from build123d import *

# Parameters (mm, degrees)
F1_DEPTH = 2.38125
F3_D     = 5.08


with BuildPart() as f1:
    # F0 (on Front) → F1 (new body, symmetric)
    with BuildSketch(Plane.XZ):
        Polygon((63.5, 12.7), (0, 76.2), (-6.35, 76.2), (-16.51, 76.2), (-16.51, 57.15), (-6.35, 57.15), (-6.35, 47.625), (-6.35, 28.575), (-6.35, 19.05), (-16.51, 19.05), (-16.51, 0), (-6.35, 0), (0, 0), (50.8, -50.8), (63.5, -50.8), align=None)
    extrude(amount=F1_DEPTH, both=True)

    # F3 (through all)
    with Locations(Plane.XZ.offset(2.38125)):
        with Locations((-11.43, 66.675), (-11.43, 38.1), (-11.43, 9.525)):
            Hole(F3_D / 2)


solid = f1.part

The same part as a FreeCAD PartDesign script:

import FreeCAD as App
import Part
import Sketcher
Q = App.Units.Quantity

doc = App.newDocument("Part")
body = doc.addObject("PartDesign::Body", "Body")

# Sketch on XZ plane
sketch1 = body.newObject("Sketcher::SketchObject", "Sketch")
sketch1.AttachmentSupport = (doc.getObject("XZ_Plane"), [""])
sketch1.MapMode = "FlatFace"
sketch1.addGeometry(Part.LineSegment(App.Vector(63.5, 12.7, 0), App.Vector(0, 76.2, 0)), False)
sketch1.addGeometry(Part.LineSegment(App.Vector(0, 76.2, 0), App.Vector(-16.51, 76.2, 0)), False)
sketch1.addGeometry(Part.LineSegment(App.Vector(-16.51, 76.2, 0), App.Vector(-16.51, 57.15, 0)), False)
sketch1.addGeometry(Part.LineSegment(App.Vector(-16.51, 57.15, 0), App.Vector(-6.35, 57.15, 0)), False)
sketch1.addGeometry(Part.LineSegment(App.Vector(-6.35, 57.15, 0), App.Vector(-6.35, 19.05, 0)), False)
sketch1.addGeometry(Part.LineSegment(App.Vector(-6.35, 19.05, 0), App.Vector(-16.51, 19.05, 0)), False)
sketch1.addGeometry(Part.LineSegment(App.Vector(-16.51, 19.05, 0), App.Vector(-16.51, 0, 0)), False)
sketch1.addGeometry(Part.LineSegment(App.Vector(-16.51, 0, 0), App.Vector(0, 0, 0)), False)
sketch1.addGeometry(Part.LineSegment(App.Vector(0, 0, 0), App.Vector(50.8, -50.8, 0)), False)
sketch1.addGeometry(Part.LineSegment(App.Vector(50.8, -50.8, 0), App.Vector(63.5, -50.8, 0)), False)
sketch1.addGeometry(Part.LineSegment(App.Vector(63.5, -50.8, 0), App.Vector(63.5, 12.7, 0)), False)
sketch1.addConstraint(Sketcher.Constraint("Coincident", 0, 2, 1, 1))
sketch1.addConstraint(Sketcher.Constraint("Coincident", 1, 2, 2, 1))
sketch1.addConstraint(Sketcher.Constraint("Coincident", 2, 2, 3, 1))
sketch1.addConstraint(Sketcher.Constraint("Coincident", 3, 2, 4, 1))
sketch1.addConstraint(Sketcher.Constraint("Coincident", 4, 2, 5, 1))
sketch1.addConstraint(Sketcher.Constraint("Coincident", 5, 2, 6, 1))
sketch1.addConstraint(Sketcher.Constraint("Coincident", 6, 2, 7, 1))
sketch1.addConstraint(Sketcher.Constraint("Coincident", 7, 2, 8, 1))
sketch1.addConstraint(Sketcher.Constraint("Coincident", 8, 2, 9, 1))
sketch1.addConstraint(Sketcher.Constraint("Coincident", 9, 2, 10, 1))
sketch1.addConstraint(Sketcher.Constraint("Coincident", 10, 2, 0, 1))
sketch1.addConstraint(Sketcher.Constraint("Horizontal", 1))
sketch1.addConstraint(Sketcher.Constraint("Vertical", 2))
sketch1.addConstraint(Sketcher.Constraint("Horizontal", 3))
sketch1.addConstraint(Sketcher.Constraint("Vertical", 4))
sketch1.addConstraint(Sketcher.Constraint("Horizontal", 5))
sketch1.addConstraint(Sketcher.Constraint("Vertical", 6))
sketch1.addConstraint(Sketcher.Constraint("Horizontal", 7))
sketch1.addConstraint(Sketcher.Constraint("Horizontal", 9))
sketch1.addConstraint(Sketcher.Constraint("Vertical", 10))
sketch1.addConstraint(Sketcher.Constraint("Coincident", 7, 2, -1, 1))
sketch1.addConstraint(Sketcher.Constraint("PointOnObject", 0, 2, -2))
sketch1.addConstraint(Sketcher.Constraint("Parallel", 0, 8))
sketch1.addConstraint(Sketcher.Constraint("Vertical", 2, 2, 5, 2))
sketch1.addConstraint(Sketcher.Constraint("Equal", 2, 6))
sketch1.addConstraint(Sketcher.Constraint("DistanceX", 3, 1, 3, 2, Q("0.4 in")))
sketch1.addConstraint(Sketcher.Constraint("DistanceX", 9, 1, 9, 2, Q("0.5 in")))
sketch1.addConstraint(Sketcher.Constraint("DistanceY", 4, 2, 4, 1, Q("1.5 in")))
sketch1.addConstraint(Sketcher.Constraint("DistanceY", 10, 1, 10, 2, Q("2.5 in")))
sketch1.addConstraint(Sketcher.Constraint("DistanceY", -1, 1, 0, 2, Q("3 in")))
sketch1.addConstraint(Sketcher.Constraint("DistanceX", -1, 1, 8, 2, Q("2 in")))
sketch1.addConstraint(Sketcher.Constraint("DistanceX", 1, 2, 1, 1, Q("0.65 in")))
pad1 = body.newObject("PartDesign::Pad", "Pad")
pad1.Profile = sketch1
pad1.Length = Q("0.1875 in")
pad1.Midplane = True

# Sketch on XZ plane
sketch2 = body.newObject("Sketcher::SketchObject", "Sketch001")
sketch2.AttachmentSupport = (doc.getObject("XZ_Plane"), [""])
sketch2.MapMode = "FlatFace"
sketch2.AttachmentOffset = App.Placement(App.Vector(0, 0, 0.09375 * 25.4), App.Rotation())
sketch2.addGeometry(Part.Circle(App.Vector(-11.43, 66.675, 0), App.Vector(0, 0, 1), 2.54), False)
sketch2.addGeometry(Part.Circle(App.Vector(-11.43, 38.1, 0), App.Vector(0, 0, 1), 2.54), False)
sketch2.addGeometry(Part.Circle(App.Vector(-11.43, 9.525, 0), App.Vector(0, 0, 1), 2.54), False)
sketch2.addConstraint(Sketcher.Constraint("Equal", 0, 1))
sketch2.addConstraint(Sketcher.Constraint("Equal", 1, 2))
sketch2.addConstraint(Sketcher.Constraint("Vertical", 0, 3, 1, 3))
sketch2.addConstraint(Sketcher.Constraint("Vertical", 1, 3, 2, 3))
sketch2.addConstraint(Sketcher.Constraint("Diameter", 0, Q("0.2 in")))
sketch2.addConstraint(Sketcher.Constraint("DistanceY", -1, 1, 1, 3, Q("1.5 in")))
sketch2.addConstraint(Sketcher.Constraint("DistanceX", 0, 3, -1, 1, Q("0.45 in")))
sketch2.addConstraint(Sketcher.Constraint("DistanceY", 2, 3, 0, 3, Q("2.25 in")))
sketch2.addConstraint(Sketcher.Constraint("DistanceY", -1, 1, 0, 3, Q("2.625 in")))
doc.recompute()
hole = body.newObject("PartDesign::Hole", "Hole")
hole.Profile = sketch2
hole.ThreadType = "None"
hole.Diameter = Q("0.2 in")
hole.DepthType = "ThroughAll"

doc.recompute()
